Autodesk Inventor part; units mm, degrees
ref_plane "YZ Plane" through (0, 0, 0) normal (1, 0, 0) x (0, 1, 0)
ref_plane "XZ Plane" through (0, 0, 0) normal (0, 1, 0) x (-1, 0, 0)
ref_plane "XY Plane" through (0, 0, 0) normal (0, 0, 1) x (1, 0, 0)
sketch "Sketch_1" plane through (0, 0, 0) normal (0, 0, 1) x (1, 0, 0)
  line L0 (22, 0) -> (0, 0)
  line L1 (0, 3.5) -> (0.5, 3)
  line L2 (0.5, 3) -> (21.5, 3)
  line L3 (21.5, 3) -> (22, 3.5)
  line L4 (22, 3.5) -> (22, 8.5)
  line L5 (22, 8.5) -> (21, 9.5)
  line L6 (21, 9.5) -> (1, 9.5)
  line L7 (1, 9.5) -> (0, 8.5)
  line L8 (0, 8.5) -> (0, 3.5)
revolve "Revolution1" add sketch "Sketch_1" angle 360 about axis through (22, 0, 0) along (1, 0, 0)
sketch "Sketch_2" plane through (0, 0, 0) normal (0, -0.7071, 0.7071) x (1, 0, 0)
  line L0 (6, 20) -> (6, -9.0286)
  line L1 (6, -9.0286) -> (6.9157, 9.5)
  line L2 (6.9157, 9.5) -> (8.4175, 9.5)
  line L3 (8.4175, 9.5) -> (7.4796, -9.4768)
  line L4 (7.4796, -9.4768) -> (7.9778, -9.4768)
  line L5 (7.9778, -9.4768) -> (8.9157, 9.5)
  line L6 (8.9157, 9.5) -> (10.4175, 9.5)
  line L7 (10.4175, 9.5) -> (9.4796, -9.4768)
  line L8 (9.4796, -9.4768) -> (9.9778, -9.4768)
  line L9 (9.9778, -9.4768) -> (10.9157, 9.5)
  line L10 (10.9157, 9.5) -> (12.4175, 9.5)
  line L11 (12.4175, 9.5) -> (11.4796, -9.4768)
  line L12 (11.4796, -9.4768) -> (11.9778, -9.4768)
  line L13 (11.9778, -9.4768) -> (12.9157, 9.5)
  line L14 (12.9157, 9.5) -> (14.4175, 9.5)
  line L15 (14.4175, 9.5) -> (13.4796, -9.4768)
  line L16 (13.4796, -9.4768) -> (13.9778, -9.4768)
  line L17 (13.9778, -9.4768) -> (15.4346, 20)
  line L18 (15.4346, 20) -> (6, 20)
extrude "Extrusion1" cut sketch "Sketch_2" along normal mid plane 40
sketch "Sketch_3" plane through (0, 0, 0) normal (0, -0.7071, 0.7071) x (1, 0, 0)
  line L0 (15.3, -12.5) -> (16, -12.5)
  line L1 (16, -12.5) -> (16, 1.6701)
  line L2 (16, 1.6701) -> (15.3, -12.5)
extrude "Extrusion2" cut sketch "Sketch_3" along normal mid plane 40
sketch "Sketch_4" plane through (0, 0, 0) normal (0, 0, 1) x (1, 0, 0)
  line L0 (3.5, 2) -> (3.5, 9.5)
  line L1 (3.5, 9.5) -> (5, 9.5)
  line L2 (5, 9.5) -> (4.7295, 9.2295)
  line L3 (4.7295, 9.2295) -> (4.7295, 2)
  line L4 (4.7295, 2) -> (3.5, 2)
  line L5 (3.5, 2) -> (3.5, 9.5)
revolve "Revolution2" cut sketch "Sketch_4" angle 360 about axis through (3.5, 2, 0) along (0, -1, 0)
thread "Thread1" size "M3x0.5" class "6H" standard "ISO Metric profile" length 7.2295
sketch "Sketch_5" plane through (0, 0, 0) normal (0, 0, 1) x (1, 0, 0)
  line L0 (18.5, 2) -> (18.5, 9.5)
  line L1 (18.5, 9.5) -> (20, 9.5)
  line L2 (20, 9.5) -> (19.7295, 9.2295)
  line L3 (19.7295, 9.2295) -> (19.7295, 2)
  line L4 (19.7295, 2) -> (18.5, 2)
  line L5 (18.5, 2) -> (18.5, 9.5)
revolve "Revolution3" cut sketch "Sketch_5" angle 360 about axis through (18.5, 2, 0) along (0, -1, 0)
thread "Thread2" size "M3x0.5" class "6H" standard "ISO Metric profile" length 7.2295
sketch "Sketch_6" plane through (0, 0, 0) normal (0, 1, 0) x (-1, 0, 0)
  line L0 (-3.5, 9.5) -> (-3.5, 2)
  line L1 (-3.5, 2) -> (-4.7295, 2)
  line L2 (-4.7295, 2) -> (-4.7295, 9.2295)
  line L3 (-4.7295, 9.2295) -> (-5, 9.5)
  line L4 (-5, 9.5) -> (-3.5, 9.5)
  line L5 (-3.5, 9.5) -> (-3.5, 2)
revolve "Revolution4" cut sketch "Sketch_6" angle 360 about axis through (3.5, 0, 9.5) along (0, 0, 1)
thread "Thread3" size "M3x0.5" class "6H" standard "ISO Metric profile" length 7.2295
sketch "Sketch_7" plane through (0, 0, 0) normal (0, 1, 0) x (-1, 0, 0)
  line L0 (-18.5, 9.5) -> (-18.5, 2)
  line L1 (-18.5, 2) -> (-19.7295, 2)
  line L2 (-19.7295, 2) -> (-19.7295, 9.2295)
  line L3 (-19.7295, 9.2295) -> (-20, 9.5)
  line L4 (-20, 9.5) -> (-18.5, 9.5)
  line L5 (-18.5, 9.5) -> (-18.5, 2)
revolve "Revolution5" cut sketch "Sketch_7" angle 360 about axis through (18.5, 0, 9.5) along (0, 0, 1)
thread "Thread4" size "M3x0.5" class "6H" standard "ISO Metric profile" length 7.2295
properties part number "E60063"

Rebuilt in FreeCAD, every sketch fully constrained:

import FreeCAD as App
import Part
import Sketcher
from FreeCAD import Vector
Q = App.Units.Quantity

doc = App.newDocument("Part")
body = doc.addObject("PartDesign::Body", "Body")

sketch1 = doc.addObject("Sketcher::SketchObject", "Sketch")
body.addObject(sketch1)
sketch1.AttachmentSupport = (doc.XY_Plane, [""])
sketch1.MapMode = "FlatFace"
sketch1.addGeometry([
    Part.LineSegment(Vector(0, 8.5, 0), Vector(0, 3.5, 0)),
    Part.LineSegment(Vector(0, 3.5, 0), Vector(0.5, 3, 0)),
    Part.LineSegment(Vector(0.5, 3, 0), Vector(21.5, 3, 0)),
    Part.LineSegment(Vector(21.5, 3, 0), Vector(22, 3.5, 0)),
    Part.LineSegment(Vector(22, 3.5, 0), Vector(22, 8.5, 0)),
    Part.LineSegment(Vector(22, 8.5, 0), Vector(21, 9.5, 0)),
    Part.LineSegment(Vector(21, 9.5, 0), Vector(1, 9.5, 0)),
    Part.LineSegment(Vector(1, 9.5, 0), Vector(0, 8.5, 0)),
], False)
sketch1.addConstraint([
    Sketcher.Constraint("Coincident", 0, 2, 1, 1),
    Sketcher.Constraint("Coincident", 1, 2, 2, 1),
    Sketcher.Constraint("Coincident", 2, 2, 3, 1),
    Sketcher.Constraint("Coincident", 3, 2, 4, 1),
    Sketcher.Constraint("Coincident", 4, 2, 5, 1),
    Sketcher.Constraint("Coincident", 5, 2, 6, 1),
    Sketcher.Constraint("Coincident", 6, 2, 7, 1),
    Sketcher.Constraint("Coincident", 7, 2, 0, 1),
    Sketcher.Constraint("Vertical", 0),
    Sketcher.Constraint("Horizontal", 2),
    Sketcher.Constraint("Vertical", 4),
    Sketcher.Constraint("Horizontal", 6),
    Sketcher.Constraint("PointOnObject", 0, 2, -2),
    Sketcher.Constraint("Perpendicular", 1, 3),
    Sketcher.Constraint("Perpendicular", 3, 5),
    Sketcher.Constraint("Perpendicular", 5, 7),
    Sketcher.Constraint("Horizontal", 0, 2, 3, 2),
    Sketcher.Constraint("Horizontal", 4, 2, 7, 2),
    Sketcher.Constraint("Equal", 1, 3),
    Sketcher.Constraint("DistanceX", 2, 1, 2, 2, Q("21 mm")),
    Sketcher.Constraint("DistanceX", 6, 2, 6, 1, Q("20 mm")),
    Sketcher.Constraint("DistanceY", 0, 2, 0, 1, Q("5 mm")),
    Sketcher.Constraint("DistanceY", -1, 1, 1, 2, Q("3 mm")),
    Sketcher.Constraint("DistanceX", -1, 1, 3, 2, Q("22 mm")),
])
revolution = doc.addObject("PartDesign::Revolution", "Revolution")
body.addObject(revolution)
revolution.Profile = sketch1
revolution.ReferenceAxis = (sketch1, ["H_Axis"])
revolution.Angle = 360

sketch2 = doc.addObject("Sketcher::SketchObject", "Sketch001")
body.addObject(sketch2)
sketch2.Placement = App.Placement(Vector(0, 0, 0), App.Rotation(Vector(1, 0, 0), Vector(0, 0.707106781, 0.707106781), Vector(0, -0.707106781, 0.707106781), "ZXY"))
sketch2.addGeometry([
    Part.LineSegment(Vector(15.43, 20, 0), Vector(6, 20, 0)),
    Part.LineSegment(Vector(6, 20, 0), Vector(6, -9.03, 0)),
    Part.LineSegment(Vector(6, -9.03, 0), Vector(6.92, 9.5, 0)),
    Part.LineSegment(Vector(6.92, 9.5, 0), Vector(8.42, 9.5, 0)),
    Part.LineSegment(Vector(8.42, 9.5, 0), Vector(7.48, -9.48, 0)),
    Part.LineSegment(Vector(7.48, -9.48, 0), Vector(7.98, -9.48, 0)),
    Part.LineSegment(Vector(7.98, -9.48, 0), Vector(8.92, 9.5, 0)),
    Part.LineSegment(Vector(8.92, 9.5, 0), Vector(10.42, 9.5, 0)),
    Part.LineSegment(Vector(10.42, 9.5, 0), Vector(9.48, -9.48, 0)),
    Part.LineSegment(Vector(9.48, -9.48, 0), Vector(9.98, -9.48, 0)),
    Part.LineSegment(Vector(9.98, -9.48, 0), Vector(10.92, 9.5, 0)),
    Part.LineSegment(Vector(10.92, 9.5, 0), Vector(12.42, 9.5, 0)),
    Part.LineSegment(Vector(12.42, 9.5, 0), Vector(11.48, -9.48, 0)),
    Part.LineSegment(Vector(11.48, -9.48, 0), Vector(11.98, -9.48, 0)),
    Part.LineSegment(Vector(11.98, -9.48, 0), Vector(12.92, 9.5, 0)),
    Part.LineSegment(Vector(12.92, 9.5, 0), Vector(14.42, 9.5, 0)),
    Part.LineSegment(Vector(14.42, 9.5, 0), Vector(13.48, -9.48, 0)),
    Part.LineSegment(Vector(13.48, -9.48, 0), Vector(13.98, -9.48, 0)),
    Part.LineSegment(Vector(13.98, -9.48, 0), Vector(15.43, 20, 0)),
], False)
sketch2.addConstraint([
    Sketcher.Constraint("Coincident", 0, 2, 1, 1),
    Sketcher.Constraint("Coincident", 1, 2, 2, 1),
    Sketcher.Constraint("Coincident", 2, 2, 3, 1),
    Sketcher.Constraint("Coincident", 3, 2, 4, 1),
    Sketcher.Constraint("Coincident", 4, 2, 5, 1),
    Sketcher.Constraint("Coincident", 5, 2, 6, 1),
    Sketcher.Constraint("Coincident", 6, 2, 7, 1),
    Sketcher.Constraint("Coincident", 7, 2, 8, 1),
    Sketcher.Constraint("Coincident", 8, 2, 9, 1),
    Sketcher.Constraint("Coincident", 9, 2, 10, 1),
    Sketcher.Constraint("Coincident", 10, 2, 11, 1),
    Sketcher.Constraint("Coincident", 11, 2, 12, 1),
    Sketcher.Constraint("Coincident", 12, 2, 13, 1),
    Sketcher.Constraint("Coincident", 13, 2, 14, 1),
    Sketcher.Constraint("Coincident", 14, 2, 15, 1),
    Sketcher.Constraint("Coincident", 15, 2, 16, 1),
    Sketcher.Constraint("Coincident", 16, 2, 17, 1),
    Sketcher.Constraint("Coincident", 17, 2, 18, 1),
    Sketcher.Constraint("Coincident", 18, 2, 0, 1),
    Sketcher.Constraint("Horizontal", 0),
    Sketcher.Constraint("Vertical", 1),
    Sketcher.Constraint("Horizontal", 3),
    Sketcher.Constraint("Horizontal", 5),
    Sketcher.Constraint("Horizontal", 7),
    Sketcher.Constraint("Horizontal", 9),
    Sketcher.Constraint("Horizontal", 11),
    Sketcher.Constraint("Horizontal", 13),
    Sketcher.Constraint("Horizontal", 15),
    Sketcher.Constraint("Horizontal", 17),
    Sketcher.Constraint("Parallel", 2, 4),
    Sketcher.Constraint("Parallel", 4, 6),
    Sketcher.Constraint("Parallel", 6, 8),
    Sketcher.Constraint("Parallel", 8, 10),
    Sketcher.Constraint("Parallel", 10, 12),
    Sketcher.Constraint("Parallel", 12, 14),
    Sketcher.Constraint("Parallel", 14, 16),
    Sketcher.Constraint("Parallel", 16, 18),
    Sketcher.Constraint("Horizontal", 3, 2, 6, 2),
    Sketcher.Constraint("Horizontal", 5, 2, 8, 2),
    Sketcher.Constraint("Horizontal", 7, 2, 10, 2),
    Sketcher.Constraint("Horizontal", 9, 2, 12, 2),
    Sketcher.Constraint("Horizontal", 11, 2, 14, 2),
    Sketcher.Constraint("Horizontal", 13, 2, 16, 2),
    Sketcher.Constraint("Equal", 3, 7),
    Sketcher.Constraint("Equal", 5, 9),
    Sketcher.Constraint("Equal", 7, 11),
    Sketcher.Constraint("Equal", 9, 13),
    Sketcher.Constraint("Equal", 11, 15),
    Sketcher.Constraint("Equal", 13, 17),
    Sketcher.Constraint("Distance", 4, Q("19 mm")),
    Sketcher.Constraint("DistanceX", -1, 1, 0, 2, Q("6 mm")),
    Sketcher.Constraint("DistanceY", -1, 1, 0, 2, Q("20 mm")),
    Sketcher.Constraint("DistanceX", 2, 2, 6, 2, Q("2 mm")),
    Sketcher.Constraint("DistanceY", -1, 1, 2, 2, Q("9.5 mm")),
    Sketcher.Constraint("Angle", 2, Q("87.1707 deg")),
    Sketcher.Constraint("DistanceX", 0, 2, 0, 1, Q("9.4346 mm")),
    Sketcher.Constraint("DistanceX", 3, 1, 3, 2, Q("1.5018 mm")),
])
pocket1 = doc.addObject("PartDesign::Pocket", "Pocket")
body.addObject(pocket1)
pocket1.Profile = sketch2
pocket1.Length = 40
pocket1.Midplane = True

sketch3 = doc.addObject("Sketcher::SketchObject", "Sketch002")
body.addObject(sketch3)
sketch3.Placement = App.Placement(Vector(0, 0, 0), App.Rotation(Vector(1, 0, 0), Vector(0, 0.707106781, 0.707106781), Vector(0, -0.707106781, 0.707106781), "ZXY"))
sketch3.addGeometry([
    Part.LineSegment(Vector(16, 1.7, 0), Vector(15.3, -12.5, 0)),
    Part.LineSegment(Vector(15.3, -12.5, 0), Vector(16, -12.5, 0)),
    Part.LineSegment(Vector(16, -12.5, 0), Vector(16, 1.7, 0)),
], False)
sketch3.addConstraint([
    Sketcher.Constraint("Coincident", 0, 2, 1, 1),
    Sketcher.Constraint("Coincident", 1, 2, 2, 1),
    Sketcher.Constraint("Coincident", 2, 2, 0, 1),
    Sketcher.Constraint("Horizontal", 1),
    Sketcher.Constraint("Vertical", 2),
    Sketcher.Constraint("DistanceX", 1, 1, 1, 2, Q("0.7 mm")),
    Sketcher.Constraint("DistanceX", -1, 1, 1, 2, Q("16 mm")),
    Sketcher.Constraint("DistanceY", 2, 1, 2, 2, Q("14.17 mm")),
    Sketcher.Constraint("DistanceY", 0, 2, -1, 1, Q("12.5 mm")),
])
pocket2 = doc.addObject("PartDesign::Pocket", "Pocket001")
body.addObject(pocket2)
pocket2.Profile = sketch3
pocket2.Length = 40
pocket2.Midplane = True

sketch4 = doc.addObject("Sketcher::SketchObject", "Sketch003")
body.addObject(sketch4)
sketch4.AttachmentSupport = (doc.XY_Plane, [""])
sketch4.MapMode = "FlatFace"
sketch4.addGeometry([
    Part.LineSegment(Vector(3.5, 9.5, 0), Vector(3.5, 2, 0)),
    Part.LineSegment(Vector(3.5, 2, 0), Vector(4.73, 2, 0)),
    Part.LineSegment(Vector(4.73, 2, 0), Vector(4.73, 9.23, 0)),
    Part.LineSegment(Vector(4.73, 9.23, 0), Vector(5, 9.5, 0)),
    Part.LineSegment(Vector(5, 9.5, 0), Vector(3.5, 9.5, 0)),
], False)
sketch4.addGeometry(Part.LineSegment(Vector(3.5, 9.5, 0), Vector(3.5, 2, 0)), True)
sketch4.addConstraint([
    Sketcher.Constraint("Coincident", 0, 2, 1, 1),
    Sketcher.Constraint("Coincident", 1, 2, 2, 1),
    Sketcher.Constraint("Coincident", 2, 2, 3, 1),
    Sketcher.Constraint("Coincident", 3, 2, 4, 1),
    Sketcher.Constraint("Coincident", 4, 2, 0, 1),
    Sketcher.Constraint("Vertical", 0),
    Sketcher.Constraint("Horizontal", 1),
    Sketcher.Constraint("Vertical", 2),
    Sketcher.Constraint("Horizontal", 4),
    Sketcher.Constraint("Vertical", 5),
    Sketcher.Constraint("Coincident", 5, 1, 4, 2),
    Sketcher.Constraint("Horizontal", 1, 2, 5, 2),
    Sketcher.Constraint("Angle", 3, Q("45 deg")),
    Sketcher.Constraint("DistanceX", 4, 2, 4, 1, Q("1.5 mm")),
    Sketcher.Constraint("DistanceY", 0, 2, 0, 1, Q("7.5 mm")),
    Sketcher.Constraint("DistanceY", -1, 1, 0, 2, Q("2 mm")),
    Sketcher.Constraint("DistanceX", -1, 1, 3, 2, Q("5 mm")),
    Sketcher.Constraint("DistanceX", 1, 1, 1, 2, Q("1.2295 mm")),
])
groove = doc.addObject("PartDesign::Groove", "Groove")
body.addObject(groove)
groove.Profile = sketch4
groove.ReferenceAxis = (sketch4, ["Axis0"])
groove.Angle = 360

sketch5 = doc.addObject("Sketcher::SketchObject", "Sketch004")
body.addObject(sketch5)
sketch5.AttachmentSupport = (doc.XY_Plane, [""])
sketch5.MapMode = "FlatFace"
sketch5.addGeometry([
    Part.LineSegment(Vector(18.5, 9.5, 0), Vector(18.5, 2, 0)),
    Part.LineSegment(Vector(18.5, 2, 0), Vector(19.73, 2, 0)),
    Part.LineSegment(Vector(19.73, 2, 0), Vector(19.73, 9.23, 0)),
    Part.LineSegment(Vector(19.73, 9.23, 0), Vector(20, 9.5, 0)),
    Part.LineSegment(Vector(20, 9.5, 0), Vector(18.5, 9.5, 0)),
], False)
sketch5.addGeometry(Part.LineSegment(Vector(18.5, 9.5, 0), Vector(18.5, 2, 0)), True)
sketch5.addConstraint([
    Sketcher.Constraint("Coincident", 0, 2, 1, 1),
    Sketcher.Constraint("Coincident", 1, 2, 2, 1),
    Sketcher.Constraint("Coincident", 2, 2, 3, 1),
    Sketcher.Constraint("Coincident", 3, 2, 4, 1),
    Sketcher.Constraint("Coincident", 4, 2, 0, 1),
    Sketcher.Constraint("Vertical", 0),
    Sketcher.Constraint("Horizontal", 1),
    Sketcher.Constraint("Vertical", 2),
    Sketcher.Constraint("Horizontal", 4),
    Sketcher.Constraint("Vertical", 5),
    Sketcher.Constraint("Coincident", 5, 1, 4, 2),
    Sketcher.Constraint("Horizontal", 1, 2, 5, 2),
    Sketcher.Constraint("Angle", 3, Q("45 deg")),
    Sketcher.Constraint("DistanceX", 4, 2, 4, 1, Q("1.5 mm")),
    Sketcher.Constraint("DistanceY", 0, 2, 0, 1, Q("7.5 mm")),
    Sketcher.Constraint("DistanceY", -1, 1, 0, 2, Q("2 mm")),
    Sketcher.Constraint("DistanceX", -1, 1, 3, 2, Q("20 mm")),
    Sketcher.Constraint("DistanceX", 1, 1, 1, 2, Q("1.2295 mm")),
])
groove2 = doc.addObject("PartDesign::Groove", "Groove001")
body.addObject(groove2)
groove2.Profile = sketch5
groove2.ReferenceAxis = (sketch5, ["Axis0"])
groove2.Angle = 360

sketch6 = doc.addObject("Sketcher::SketchObject", "Sketch005")
body.addObject(sketch6)
sketch6.AttachmentSupport = (doc.XZ_Plane, [""])
sketch6.MapMode = "FlatFace"
sketch6.addGeometry([
    Part.LineSegment(Vector(3.5, 2, 0), Vector(3.5, 9.5, 0)),
    Part.LineSegment(Vector(3.5, 9.5, 0), Vector(5, 9.5, 0)),
    Part.LineSegment(Vector(5, 9.5, 0), Vector(4.73, 9.23, 0)),
    Part.LineSegment(Vector(4.73, 9.23, 0), Vector(4.73, 2, 0)),
    Part.LineSegment(Vector(4.73, 2, 0), Vector(3.5, 2, 0)),
], False)
sketch6.addGeometry(Part.LineSegment(Vector(3.5, 2, 0), Vector(3.5, 9.5, 0)), True)
sketch6.addConstraint([
    Sketcher.Constraint("Coincident", 0, 2, 1, 1),
    Sketcher.Constraint("Coincident", 1, 2, 2, 1),
    Sketcher.Constraint("Coincident", 2, 2, 3, 1),
    Sketcher.Constraint("Coincident", 3, 2, 4, 1),
    Sketcher.Constraint("Coincident", 4, 2, 0, 1),
    Sketcher.Constraint("Vertical", 0),
    Sketcher.Constraint("Horizontal", 1),
    Sketcher.Constraint("Vertical", 3),
    Sketcher.Constraint("Horizontal", 4),
    Sketcher.Constraint("Vertical", 5),
    Sketcher.Constraint("Coincident", 5, 1, 4, 2),
    Sketcher.Constraint("Horizontal", 1, 2, 5, 2),
    Sketcher.Constraint("Angle", 2, Q("-135 deg")),
    Sketcher.Constraint("DistanceX", 1, 1, 1, 2, Q("1.5 mm")),
    Sketcher.Constraint("DistanceY", 0, 1, 0, 2, Q("7.5 mm")),
    Sketcher.Constraint("DistanceX", -1, 1, 1, 2, Q("5 mm")),
    Sketcher.Constraint("DistanceY", -1, 1, 3, 2, Q("2 mm")),
    Sketcher.Constraint("DistanceX", 4, 2, 4, 1, Q("1.2295 mm")),
])
groove3 = doc.addObject("PartDesign::Groove", "Groove002")
body.addObject(groove3)
groove3.Profile = sketch6
groove3.ReferenceAxis = (sketch6, ["Axis0"])
groove3.Angle = 360

sketch7 = doc.addObject("Sketcher::SketchObject", "Sketch006")
body.addObject(sketch7)
sketch7.AttachmentSupport = (doc.XZ_Plane, [""])
sketch7.MapMode = "FlatFace"
sketch7.addGeometry([
    Part.LineSegment(Vector(18.5, 2, 0), Vector(18.5, 9.5, 0)),
    Part.LineSegment(Vector(18.5, 9.5, 0), Vector(20, 9.5, 0)),
    Part.LineSegment(Vector(20, 9.5, 0), Vector(19.73, 9.23, 0)),
    Part.LineSegment(Vector(19.73, 9.23, 0), Vector(19.73, 2, 0)),
    Part.LineSegment(Vector(19.73, 2, 0), Vector(18.5, 2, 0)),
], False)
sketch7.addGeometry(Part.LineSegment(Vector(18.5, 2, 0), Vector(18.5, 9.5, 0)), True)
sketch7.addConstraint([
    Sketcher.Constraint("Coincident", 0, 2, 1, 1),
    Sketcher.Constraint("Coincident", 1, 2, 2, 1),
    Sketcher.Constraint("Coincident", 2, 2, 3, 1),
    Sketcher.Constraint("Coincident", 3, 2, 4, 1),
    Sketcher.Constraint("Coincident", 4, 2, 0, 1),
    Sketcher.Constraint("Vertical", 0),
    Sketcher.Constraint("Horizontal", 1),
    Sketcher.Constraint("Vertical", 3),
    Sketcher.Constraint("Horizontal", 4),
    Sketcher.Constraint("Vertical", 5),
    Sketcher.Constraint("Coincident", 5, 1, 4, 2),
    Sketcher.Constraint("Horizontal", 1, 2, 5, 2),
    Sketcher.Constraint("Angle", 2, Q("-135 deg")),
    Sketcher.Constraint("DistanceX", 1, 1, 1, 2, Q("1.5 mm")),
    Sketcher.Constraint("DistanceY", 0, 1, 0, 2, Q("7.5 mm")),
    Sketcher.Constraint("DistanceX", -1, 1, 1, 2, Q("20 mm")),
    Sketcher.Constraint("DistanceY", -1, 1, 3, 2, Q("2 mm")),
    Sketcher.Constraint("DistanceX", 4, 2, 4, 1, Q("1.2295 mm")),
])
groove4 = doc.addObject("PartDesign::Groove", "Groove003")
body.addObject(groove4)
groove4.Profile = sketch7
groove4.ReferenceAxis = (sketch7, ["Axis0"])
groove4.Angle = 360

doc.recompute()
